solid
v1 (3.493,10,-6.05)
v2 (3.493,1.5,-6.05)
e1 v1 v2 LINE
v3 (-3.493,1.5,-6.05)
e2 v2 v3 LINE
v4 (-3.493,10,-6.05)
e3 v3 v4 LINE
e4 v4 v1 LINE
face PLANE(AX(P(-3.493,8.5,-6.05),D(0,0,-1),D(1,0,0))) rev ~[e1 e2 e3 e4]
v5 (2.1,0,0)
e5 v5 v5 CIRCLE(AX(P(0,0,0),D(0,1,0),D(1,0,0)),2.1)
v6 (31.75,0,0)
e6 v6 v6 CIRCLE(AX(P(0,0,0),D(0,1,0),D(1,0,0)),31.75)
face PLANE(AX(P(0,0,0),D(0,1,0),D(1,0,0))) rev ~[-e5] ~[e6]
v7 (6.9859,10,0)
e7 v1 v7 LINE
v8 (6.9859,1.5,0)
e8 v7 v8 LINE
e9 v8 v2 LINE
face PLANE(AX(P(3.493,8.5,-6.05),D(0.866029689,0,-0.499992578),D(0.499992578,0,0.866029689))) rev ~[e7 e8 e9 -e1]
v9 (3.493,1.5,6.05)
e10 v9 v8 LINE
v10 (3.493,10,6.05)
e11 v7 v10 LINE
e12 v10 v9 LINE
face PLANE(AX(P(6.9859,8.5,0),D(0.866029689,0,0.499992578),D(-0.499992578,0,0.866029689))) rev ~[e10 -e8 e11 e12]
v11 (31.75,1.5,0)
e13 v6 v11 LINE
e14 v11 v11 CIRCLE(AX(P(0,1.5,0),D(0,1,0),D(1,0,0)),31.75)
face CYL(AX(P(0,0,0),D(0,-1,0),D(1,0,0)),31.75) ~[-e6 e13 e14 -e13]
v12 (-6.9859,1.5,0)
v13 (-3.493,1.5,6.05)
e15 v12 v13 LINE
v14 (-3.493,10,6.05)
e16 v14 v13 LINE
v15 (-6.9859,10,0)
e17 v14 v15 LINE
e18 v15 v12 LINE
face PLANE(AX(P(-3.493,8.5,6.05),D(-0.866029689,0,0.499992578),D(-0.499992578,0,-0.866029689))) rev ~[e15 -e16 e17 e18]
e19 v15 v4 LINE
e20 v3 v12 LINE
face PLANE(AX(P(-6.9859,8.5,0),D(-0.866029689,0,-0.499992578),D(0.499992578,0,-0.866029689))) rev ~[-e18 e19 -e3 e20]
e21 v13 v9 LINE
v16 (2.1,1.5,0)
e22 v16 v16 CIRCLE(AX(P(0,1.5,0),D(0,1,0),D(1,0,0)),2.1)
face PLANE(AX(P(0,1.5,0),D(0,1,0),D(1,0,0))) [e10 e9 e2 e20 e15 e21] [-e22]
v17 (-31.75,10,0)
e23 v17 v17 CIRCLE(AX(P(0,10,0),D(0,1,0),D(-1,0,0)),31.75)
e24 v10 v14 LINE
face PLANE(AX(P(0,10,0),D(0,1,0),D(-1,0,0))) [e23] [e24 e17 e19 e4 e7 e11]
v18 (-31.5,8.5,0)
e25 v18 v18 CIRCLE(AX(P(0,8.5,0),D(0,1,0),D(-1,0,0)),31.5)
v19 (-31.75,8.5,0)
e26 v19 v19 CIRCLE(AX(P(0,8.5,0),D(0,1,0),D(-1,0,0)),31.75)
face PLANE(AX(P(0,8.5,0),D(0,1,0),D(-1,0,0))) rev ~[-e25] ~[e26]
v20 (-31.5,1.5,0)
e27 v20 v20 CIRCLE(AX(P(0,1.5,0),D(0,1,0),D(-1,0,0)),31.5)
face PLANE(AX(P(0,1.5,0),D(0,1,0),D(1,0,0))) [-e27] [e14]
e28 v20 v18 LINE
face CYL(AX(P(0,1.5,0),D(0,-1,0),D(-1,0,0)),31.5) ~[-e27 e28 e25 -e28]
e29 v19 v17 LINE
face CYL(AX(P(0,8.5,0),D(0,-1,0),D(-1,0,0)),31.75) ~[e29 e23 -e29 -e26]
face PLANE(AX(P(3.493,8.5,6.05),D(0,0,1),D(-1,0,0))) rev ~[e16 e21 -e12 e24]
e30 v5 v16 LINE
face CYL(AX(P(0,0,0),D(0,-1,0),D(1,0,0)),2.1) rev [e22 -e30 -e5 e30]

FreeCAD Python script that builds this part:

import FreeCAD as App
import Part
import Sketcher
Q = App.Units.Quantity

doc = App.newDocument("Part")
body = doc.addObject("PartDesign::Body", "Body")

# Sketch on XZ plane
sketch1 = body.newObject("Sketcher::SketchObject", "Sketch")
sketch1.AttachmentSupport = (doc.getObject("XZ_Plane"), [""])
sketch1.MapMode = "FlatFace"
sketch1.addGeometry([
    Part.Circle(App.Vector(0, 0, 0), App.Vector(0, 0, 1), 31.8),
    Part.Circle(App.Vector(0, 0, 0), App.Vector(0, 0, 1), 2.1),
], False)
sketch1.addConstraint([
    Sketcher.Constraint("Coincident", 0, 3, -1, 1),
    Sketcher.Constraint("Coincident", 1, 3, -1, 1),
    Sketcher.Constraint("Diameter", 0, 63.5),
    Sketcher.Constraint("Diameter", 1, 4.2),
])
pad1 = body.newObject("PartDesign::Pad", "Pad")
pad1.Profile = sketch1
pad1.Length = 1.5
pad1.Reversed = True

# Sketch on XZ plane
sketch2 = body.newObject("Sketcher::SketchObject", "Sketch001")
sketch2.AttachmentSupport = (doc.getObject("XZ_Plane"), [""])
sketch2.MapMode = "FlatFace"
sketch2.AttachmentOffset = App.Placement(App.Vector(0, 0, -1.5), App.Rotation())
sketch2.addGeometry([
    Part.Circle(App.Vector(0, 0, 0), App.Vector(0, 0, 1), 32),  # 0
    Part.LineSegment(App.Vector(-7, 0, 0), App.Vector(-3, -6, 0)),  # 1
    Part.LineSegment(App.Vector(-3, -6, 0), App.Vector(3, -6, 0)),  # 2
    Part.LineSegment(App.Vector(3, -6, 0), App.Vector(7, 0, 0)),  # 3
    Part.LineSegment(App.Vector(7, 0, 0), App.Vector(3, 6, 0)),  # 4
    Part.LineSegment(App.Vector(3, 6, 0), App.Vector(-3, 6, 0)),  # 5
    Part.LineSegment(App.Vector(-3, 6, 0), App.Vector(-7, 0, 0)),  # 6
], False)
sketch2.addConstraint([
    Sketcher.Constraint("Coincident", 1, 2, 2, 1),
    Sketcher.Constraint("Coincident", 2, 2, 3, 1),
    Sketcher.Constraint("Coincident", 3, 2, 4, 1),
    Sketcher.Constraint("Coincident", 4, 2, 5, 1),
    Sketcher.Constraint("Coincident", 5, 2, 6, 1),
    Sketcher.Constraint("Coincident", 6, 2, 1, 1),
    Sketcher.Constraint("Horizontal", 2),
    Sketcher.Constraint("Horizontal", 5),
    Sketcher.Constraint("Coincident", 0, 3, -1, 1),
    Sketcher.Constraint("Symmetric", 1, 2, 4, 2, -1, 1),
    Sketcher.Constraint("Symmetric", 3, 2, 6, 2, -1, 1),
    Sketcher.Constraint("PointOnObject", 3, 2, -1),
    Sketcher.Constraint("Parallel", 3, 6),
    Sketcher.Constraint("Vertical", 2, 2, 4, 2),
    Sketcher.Constraint("Diameter", 0, 63.0),
    Sketcher.Constraint("DistanceY", 1, 2, -1, 1, 6.05),
    Sketcher.Constraint("Angle", 1, Q("-60.0005 deg")),
    Sketcher.Constraint("DistanceX", 2, 1, 2, 2, 6.986),
])
pad2 = body.newObject("PartDesign::Pad", "Pad001")
pad2.Profile = sketch2
pad2.Length = 7
pad2.Reversed = True

# Sketch on XZ plane
sketch3 = body.newObject("Sketcher::SketchObject", "Sketch002")
sketch3.AttachmentSupport = (doc.getObject("XZ_Plane"), [""])
sketch3.MapMode = "FlatFace"
sketch3.AttachmentOffset = App.Placement(App.Vector(0, 0, -8.5), App.Rotation())
sketch3.addGeometry([
    Part.Circle(App.Vector(0, 0, 0), App.Vector(0, 0, 1), 32),  # 0
    Part.LineSegment(App.Vector(-7, 0, 0), App.Vector(-3, -6, 0)),  # 1
    Part.LineSegment(App.Vector(-3, -6, 0), App.Vector(3, -6, 0)),  # 2
    Part.LineSegment(App.Vector(3, -6, 0), App.Vector(7, 0, 0)),  # 3
    Part.LineSegment(App.Vector(7, 0, 0), App.Vector(3, 6, 0)),  # 4
    Part.LineSegment(App.Vector(3, 6, 0), App.Vector(-3, 6, 0)),  # 5
    Part.LineSegment(App.Vector(-3, 6, 0), App.Vector(-7, 0, 0)),  # 6
], False)
sketch3.addConstraint([
    Sketcher.Constraint("Coincident", 1, 2, 2, 1),
    Sketcher.Constraint("Coincident", 2, 2, 3, 1),
    Sketcher.Constraint("Coincident", 3, 2, 4, 1),
    Sketcher.Constraint("Coincident", 4, 2, 5, 1),
    Sketcher.Constraint("Coincident", 5, 2, 6, 1),
    Sketcher.Constraint("Coincident", 6, 2, 1, 1),
    Sketcher.Constraint("Horizontal", 2),
    Sketcher.Constraint("Horizontal", 5),
    Sketcher.Constraint("Coincident", 0, 3, -1, 1),
    Sketcher.Constraint("Symmetric", 1, 2, 4, 2, -1, 1),
    Sketcher.Constraint("Symmetric", 3, 2, 6, 2, -1, 1),
    Sketcher.Constraint("PointOnObject", 3, 2, -1),
    Sketcher.Constraint("Parallel", 3, 6),
    Sketcher.Constraint("Vertical", 2, 2, 4, 2),
    Sketcher.Constraint("Diameter", 0, 63.5),
    Sketcher.Constraint("Angle", 1, Q("-60.0005 deg")),
    Sketcher.Constraint("DistanceY", 2, 2, 4, 2, 12.1),
    Sketcher.Constraint("DistanceX", 2, 1, 2, 2, 6.986),
])
pad3 = body.newObject("PartDesign::Pad", "Pad002")
pad3.Profile = sketch3
pad3.Length = 1.5
pad3.Reversed = True

doc.recompute()
